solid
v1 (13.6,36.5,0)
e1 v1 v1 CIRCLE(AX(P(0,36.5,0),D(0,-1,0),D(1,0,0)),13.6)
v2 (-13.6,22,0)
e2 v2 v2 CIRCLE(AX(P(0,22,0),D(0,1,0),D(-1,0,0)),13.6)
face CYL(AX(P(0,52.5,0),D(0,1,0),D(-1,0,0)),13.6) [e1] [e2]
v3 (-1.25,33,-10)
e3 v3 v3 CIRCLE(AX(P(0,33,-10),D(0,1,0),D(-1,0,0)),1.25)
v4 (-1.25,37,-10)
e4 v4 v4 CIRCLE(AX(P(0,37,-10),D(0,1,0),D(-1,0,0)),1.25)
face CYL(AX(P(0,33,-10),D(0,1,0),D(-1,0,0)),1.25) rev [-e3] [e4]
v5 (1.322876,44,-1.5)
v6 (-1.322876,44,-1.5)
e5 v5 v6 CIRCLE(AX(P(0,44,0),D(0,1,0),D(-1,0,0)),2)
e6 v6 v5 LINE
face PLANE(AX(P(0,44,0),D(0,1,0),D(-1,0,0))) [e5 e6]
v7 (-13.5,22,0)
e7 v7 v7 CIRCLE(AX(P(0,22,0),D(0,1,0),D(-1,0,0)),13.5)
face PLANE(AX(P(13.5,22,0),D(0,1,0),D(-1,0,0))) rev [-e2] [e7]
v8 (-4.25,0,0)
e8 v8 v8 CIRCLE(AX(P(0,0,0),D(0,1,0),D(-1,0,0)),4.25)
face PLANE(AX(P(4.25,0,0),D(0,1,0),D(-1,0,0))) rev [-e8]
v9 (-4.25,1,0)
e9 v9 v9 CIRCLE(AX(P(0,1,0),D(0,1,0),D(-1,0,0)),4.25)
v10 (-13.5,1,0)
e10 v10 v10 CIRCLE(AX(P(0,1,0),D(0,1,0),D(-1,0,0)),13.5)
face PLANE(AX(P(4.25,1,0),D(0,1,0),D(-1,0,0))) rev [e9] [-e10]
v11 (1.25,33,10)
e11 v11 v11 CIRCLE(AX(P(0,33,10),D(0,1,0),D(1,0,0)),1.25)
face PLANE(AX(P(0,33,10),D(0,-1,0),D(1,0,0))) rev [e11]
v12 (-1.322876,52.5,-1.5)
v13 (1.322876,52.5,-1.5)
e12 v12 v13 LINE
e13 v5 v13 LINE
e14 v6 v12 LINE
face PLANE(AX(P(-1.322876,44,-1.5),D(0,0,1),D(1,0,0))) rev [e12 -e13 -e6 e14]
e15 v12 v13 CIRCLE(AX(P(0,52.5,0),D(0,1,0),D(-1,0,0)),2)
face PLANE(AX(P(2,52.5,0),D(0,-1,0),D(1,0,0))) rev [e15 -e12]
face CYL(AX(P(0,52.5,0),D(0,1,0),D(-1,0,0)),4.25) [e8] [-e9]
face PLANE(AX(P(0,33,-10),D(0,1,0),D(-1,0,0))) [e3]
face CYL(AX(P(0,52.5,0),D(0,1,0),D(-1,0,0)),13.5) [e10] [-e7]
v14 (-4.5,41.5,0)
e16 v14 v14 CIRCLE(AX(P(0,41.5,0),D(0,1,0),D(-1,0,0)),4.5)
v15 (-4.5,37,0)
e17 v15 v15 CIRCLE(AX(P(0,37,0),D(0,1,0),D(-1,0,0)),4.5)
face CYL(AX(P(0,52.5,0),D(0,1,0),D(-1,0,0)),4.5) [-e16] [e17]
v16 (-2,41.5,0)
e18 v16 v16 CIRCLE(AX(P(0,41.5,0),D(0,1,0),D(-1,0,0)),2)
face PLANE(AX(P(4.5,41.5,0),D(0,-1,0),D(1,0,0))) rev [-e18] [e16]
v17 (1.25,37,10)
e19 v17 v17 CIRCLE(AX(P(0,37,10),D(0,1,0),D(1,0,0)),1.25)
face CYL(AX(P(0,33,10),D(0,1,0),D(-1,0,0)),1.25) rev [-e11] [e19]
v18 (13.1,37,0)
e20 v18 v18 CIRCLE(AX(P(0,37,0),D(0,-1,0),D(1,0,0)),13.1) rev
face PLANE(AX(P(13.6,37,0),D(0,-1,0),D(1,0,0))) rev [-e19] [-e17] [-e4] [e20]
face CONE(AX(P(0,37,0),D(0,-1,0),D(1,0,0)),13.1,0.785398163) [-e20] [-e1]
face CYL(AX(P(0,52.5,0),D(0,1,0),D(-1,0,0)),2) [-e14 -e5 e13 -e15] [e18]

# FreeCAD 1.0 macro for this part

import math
import FreeCAD as App
import Part
import Sketcher

V = App.Vector


def edges_at(feature, points):
    """Names of the edges that pass closest to the given points."""
    edges = feature.Shape.Edges
    near = lambda p: min(range(len(edges)), key=lambda i: edges[i].distToShape(Part.Vertex(*p))[0])
    return sorted({f"Edge{near(p) + 1}" for p in points})


def add_polygon(sketch, points):
    """Adds a closed chain of lines whose ends are joined by coincident constraints."""
    first, n = sketch.GeometryCount, len(points)
    for a, b in zip(points, points[1:] + points[:1]):
        sketch.addGeometry(Part.LineSegment(App.Vector(*a, 0), App.Vector(*b, 0)), False)
    for i in range(n):
        sketch.addConstraint(Sketcher.Constraint("Coincident", first + i, 2, first + (i + 1) % n, 1))

doc = App.newDocument("Part")
body = doc.addObject("PartDesign::Body", "Body")

# Sketch on XY plane
sketch1 = body.newObject("Sketcher::SketchObject", "Sketch")
sketch1.AttachmentSupport = (doc.getObject("XY_Plane"), [""])
sketch1.MapMode = "FlatFace"
add_polygon(sketch1, [(4.25, 1), (13.5, 1), (13.5, 22), (13.6, 22), (13.6, 37), (4.5, 37), (4.5, 41.5), (2, 41.5), (2, 52.5), (0, 52.5), (0, 0), (4.25, 0)])  # lines 0-11
sketch1.addConstraint([
    Sketcher.Constraint("Horizontal", 0),
    Sketcher.Constraint("Vertical", 1),
    Sketcher.Constraint("Horizontal", 2),
    Sketcher.Constraint("Vertical", 3),
    Sketcher.Constraint("Horizontal", 4),
    Sketcher.Constraint("Vertical", 5),
    Sketcher.Constraint("Horizontal", 6),
    Sketcher.Constraint("Vertical", 7),
    Sketcher.Constraint("Horizontal", 8),
    Sketcher.Constraint("Vertical", 9),
    Sketcher.Constraint("Horizontal", 10),
    Sketcher.Constraint("Vertical", 11),
    Sketcher.Constraint("Coincident", 9, 2, -1, 1),
    Sketcher.Constraint("DistanceX", 8, 2, 8, 1, 2.0),
    Sketcher.Constraint("DistanceY", 1, 1, 1, 2, 21.0),
    Sketcher.Constraint("DistanceY", 3, 1, 3, 2, 15.0),
    Sketcher.Constraint("DistanceY", 7, 1, 7, 2, 11.0),
    Sketcher.Constraint("DistanceY", 11, 1, 11, 2, 1.0),
    Sketcher.Constraint("DistanceX", 2, 1, 2, 2, 0.1),
    Sketcher.Constraint("DistanceX", 4, 2, 4, 1, 9.1),
    Sketcher.Constraint("DistanceX", 6, 2, 6, 1, 2.5),
    Sketcher.Constraint("DistanceY", 5, 1, 5, 2, 4.5),
    Sketcher.Constraint("DistanceX", 0, 1, 0, 2, 9.25),
])
revolution = body.newObject("PartDesign::Revolution", "Revolution")
revolution.Profile = sketch1
revolution.ReferenceAxis = (sketch1, ["V_Axis"])
revolution.Angle = 360

# Sketch on XZ plane
sketch2 = body.newObject("Sketcher::SketchObject", "Sketch001")
sketch2.AttachmentSupport = (doc.getObject("XZ_Plane"), [""])
sketch2.MapMode = "FlatFace"
sketch2.AttachmentOffset = App.Placement(V(0, 0, -52.5), App.Rotation())
sketch2.addGeometry([
    Part.LineSegment(V(-1.322876, -1.5, 0), V(1.322876, -1.5, 0)),
    Part.ArcOfCircle(Part.Circle(V(0, 0, 0), V(0, 0, 1), 2), math.radians(-131.409622), math.radians(-48.590378)),
], False)
sketch2.addConstraint([
    Sketcher.Constraint("Coincident", 0, 1, 1, 1),
    Sketcher.Constraint("Coincident", 1, 2, 0, 2),
    Sketcher.Constraint("Horizontal", 0),
    Sketcher.Constraint("Coincident", 1, 3, -1, 1),
    Sketcher.Constraint("Radius", 1, 2.0),
    Sketcher.Constraint("DistanceY", 0, 1, -1, 1, 1.5),
])
pocket1 = body.newObject("PartDesign::Pocket", "Pocket")
pocket1.Profile = sketch2
pocket1.Length = 8.5
pocket1.Reversed = True

# Sketch on XZ plane
sketch3 = body.newObject("Sketcher::SketchObject", "Sketch002")
sketch3.AttachmentSupport = (doc.getObject("XZ_Plane"), [""])
sketch3.MapMode = "FlatFace"
sketch3.AttachmentOffset = App.Placement(V(0, 0, -37), App.Rotation())
sketch3.addGeometry([
    Part.Circle(V(0, -10, 0), V(0, 0, 1), 1.25),
    Part.Circle(V(0, 10, 0), V(0, 0, 1), 1.25),
], False)
sketch3.addConstraint([
    Sketcher.Constraint("Equal", 0, 1),
    Sketcher.Constraint("Symmetric", 0, 3, 1, 3, -1, 1),
    Sketcher.Constraint("PointOnObject", 0, 3, -2),
    Sketcher.Constraint("Diameter", 0, 2.5),
    Sketcher.Constraint("DistanceY", 0, 3, -1, 1, 10.0),
])
pocket2 = body.newObject("PartDesign::Pocket", "Pocket001")
pocket2.Profile = sketch3
pocket2.Length = 4
pocket2.Reversed = True
doc.recompute()

chamfer = body.newObject("PartDesign::Chamfer", "Chamfer")
chamfer.Base = (pocket2, edges_at(pocket2, [(13.6, 37, 0)]))
chamfer.Size = 0.5

doc.recompute()
